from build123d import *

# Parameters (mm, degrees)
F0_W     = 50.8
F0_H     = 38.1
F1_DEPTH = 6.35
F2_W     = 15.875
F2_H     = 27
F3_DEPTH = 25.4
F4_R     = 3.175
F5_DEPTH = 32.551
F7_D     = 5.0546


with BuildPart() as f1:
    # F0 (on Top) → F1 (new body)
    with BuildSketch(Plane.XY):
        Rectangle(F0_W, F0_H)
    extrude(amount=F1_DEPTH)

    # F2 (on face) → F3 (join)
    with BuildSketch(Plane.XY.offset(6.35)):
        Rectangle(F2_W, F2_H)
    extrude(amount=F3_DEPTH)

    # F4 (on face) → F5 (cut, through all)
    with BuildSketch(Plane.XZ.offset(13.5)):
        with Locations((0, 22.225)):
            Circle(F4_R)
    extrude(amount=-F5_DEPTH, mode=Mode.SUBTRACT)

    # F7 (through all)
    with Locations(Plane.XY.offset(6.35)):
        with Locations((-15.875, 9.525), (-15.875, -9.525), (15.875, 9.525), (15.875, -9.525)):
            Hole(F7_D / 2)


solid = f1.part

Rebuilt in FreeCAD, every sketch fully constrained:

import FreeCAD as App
import Part
import Sketcher
from FreeCAD import Vector
Q = App.Units.Quantity

doc = App.newDocument("Part")
params = doc.addObject("Spreadsheet::Sheet", "Params")
for row, (alias, value) in enumerate([
    ("sketch1_width", "2 in"),
    ("sketch1_height", "1.5 in"),
    ("pad1_length", "0.25 in"),
    ("sketch2_width", "0.625 in"),
    ("pad2_length", "1 in"),
    ("sketch3_diameter", "0.25 in"),
    ("sketch4_diameter", "0.199 in"),
    ("hole_diameter", "0.199 in"),
], start=1):
    params.set(f"A{row}", alias)
    params.set(f"B{row}", "=" + value)
    params.setAlias(f"B{row}", alias)

body = doc.addObject("PartDesign::Body", "Body")

sketch1 = body.newObject("Sketcher::SketchObject", "Sketch")
sketch1.AttachmentSupport = (doc.getObject("XY_Plane"), [""])
sketch1.MapMode = "FlatFace"
sketch1.addGeometry([
    Part.LineSegment(Vector(-25, 19, 0), Vector(-25, -19, 0)),
    Part.LineSegment(Vector(-25, -19, 0), Vector(25, -19, 0)),
    Part.LineSegment(Vector(25, -19, 0), Vector(25, 19, 0)),
    Part.LineSegment(Vector(25, 19, 0), Vector(-25, 19, 0)),
], False)
sketch1.addConstraint([
    Sketcher.Constraint("Coincident", 0, 2, 1, 1),
    Sketcher.Constraint("Coincident", 1, 2, 2, 1),
    Sketcher.Constraint("Coincident", 2, 2, 3, 1),
    Sketcher.Constraint("Coincident", 3, 2, 0, 1),
    Sketcher.Constraint("Vertical", 0),
    Sketcher.Constraint("Horizontal", 1),
    Sketcher.Constraint("Vertical", 2),
    Sketcher.Constraint("Horizontal", 3),
    Sketcher.Constraint("Symmetric", 0, 2, 2, 2, -1, 1),
    Sketcher.Constraint("DistanceX", 1, 1, 1, 2, Q("2 in")),
    Sketcher.Constraint("DistanceY", 0, 2, 0, 1, Q("1.5 in")),
])
sketch1.setExpression("Constraints[9]", "Params.sketch1_width")
sketch1.setExpression("Constraints[10]", "Params.sketch1_height")
pad1 = body.newObject("PartDesign::Pad", "Pad")
pad1.Profile = sketch1
pad1.setExpression("Length", "Params.pad1_length")

sketch2 = body.newObject("Sketcher::SketchObject", "Sketch001")
sketch2.AttachmentSupport = (doc.getObject("XY_Plane"), [""])
sketch2.MapMode = "FlatFace"
sketch2.AttachmentOffset = App.Placement(Vector(0, 0, 0.25 * 25.4), App.Rotation())
sketch2.addGeometry([
    Part.LineSegment(Vector(-8, 14, 0), Vector(-8, -14, 0)),
    Part.LineSegment(Vector(-8, -14, 0), Vector(8, -14, 0)),
    Part.LineSegment(Vector(8, -14, 0), Vector(8, 14, 0)),
    Part.LineSegment(Vector(8, 14, 0), Vector(-8, 14, 0)),
], False)
sketch2.addConstraint([
    Sketcher.Constraint("Coincident", 0, 2, 1, 1),
    Sketcher.Constraint("Coincident", 1, 2, 2, 1),
    Sketcher.Constraint("Coincident", 2, 2, 3, 1),
    Sketcher.Constraint("Coincident", 3, 2, 0, 1),
    Sketcher.Constraint("Vertical", 0),
    Sketcher.Constraint("Horizontal", 1),
    Sketcher.Constraint("Vertical", 2),
    Sketcher.Constraint("Horizontal", 3),
    Sketcher.Constraint("Symmetric", 0, 2, 2, 2, -1, 1),
    Sketcher.Constraint("DistanceX", 1, 1, 1, 2, Q("0.625 in")),
    Sketcher.Constraint("DistanceY", 0, 2, 0, 1, 27.0),
])
sketch2.setExpression("Constraints[9]", "Params.sketch2_width")
pad2 = body.newObject("PartDesign::Pad", "Pad001")
pad2.Profile = sketch2
pad2.setExpression("Length", "Params.pad2_length")

sketch3 = body.newObject("Sketcher::SketchObject", "Sketch002")
sketch3.AttachmentSupport = (doc.getObject("XZ_Plane"), [""])
sketch3.MapMode = "FlatFace"
sketch3.AttachmentOffset = App.Placement(Vector(0, 0, 13.5), App.Rotation())
sketch3.addGeometry(Part.Circle(Vector(0, 22.2, 0), Vector(0, 0, 1), 3.2), False)
sketch3.addConstraint([
    Sketcher.Constraint("PointOnObject", 0, 3, -2),
    Sketcher.Constraint("Diameter", 0, Q("0.25 in")),
    Sketcher.Constraint("DistanceY", -1, 1, 0, 3, Q("0.875 in")),
])
sketch3.setExpression("Constraints[1]", "Params.sketch3_diameter")
pocket1 = body.newObject("PartDesign::Pocket", "Pocket")
pocket1.Profile = sketch3
pocket1.Type = "ThroughAll"

sketch4 = body.newObject("Sketcher::SketchObject", "Sketch003")
sketch4.AttachmentSupport = (doc.getObject("XY_Plane"), [""])
sketch4.MapMode = "FlatFace"
sketch4.AttachmentOffset = App.Placement(Vector(0, 0, 0.25 * 25.4), App.Rotation())
sketch4.addGeometry([
    Part.Circle(Vector(-15.9, 9.5, 0), Vector(0, 0, 1), 2.5),
    Part.Circle(Vector(-15.9, -9.5, 0), Vector(0, 0, 1), 2.5),
    Part.Circle(Vector(15.9, 9.5, 0), Vector(0, 0, 1), 2.5),
    Part.Circle(Vector(15.9, -9.5, 0), Vector(0, 0, 1), 2.5),
], False)
sketch4.addConstraint([
    Sketcher.Constraint("Equal", 0, 1),
    Sketcher.Constraint("Equal", 1, 2),
    Sketcher.Constraint("Equal", 2, 3),
    Sketcher.Constraint("Symmetric", 1, 3, 2, 3, -1, 1),
    Sketcher.Constraint("Symmetric", 0, 3, 3, 3, -1, 1),
    Sketcher.Constraint("Symmetric", 0, 3, 2, 3, -2),
    Sketcher.Constraint("Diameter", 0, Q("0.199 in")),
    Sketcher.Constraint("DistanceY", 1, 3, 0, 3, Q("0.75 in")),
    Sketcher.Constraint("DistanceX", 0, 3, 2, 3, Q("1.25 in")),
])
sketch4.setExpression("Constraints[6]", "Params.sketch4_diameter")
doc.recompute()
hole = body.newObject("PartDesign::Hole", "Hole")
hole.Profile = sketch4
hole.ThreadType = "None"
hole.setExpression("Diameter", "Params.hole_diameter")
hole.DepthType = "ThroughAll"

doc.recompute()
